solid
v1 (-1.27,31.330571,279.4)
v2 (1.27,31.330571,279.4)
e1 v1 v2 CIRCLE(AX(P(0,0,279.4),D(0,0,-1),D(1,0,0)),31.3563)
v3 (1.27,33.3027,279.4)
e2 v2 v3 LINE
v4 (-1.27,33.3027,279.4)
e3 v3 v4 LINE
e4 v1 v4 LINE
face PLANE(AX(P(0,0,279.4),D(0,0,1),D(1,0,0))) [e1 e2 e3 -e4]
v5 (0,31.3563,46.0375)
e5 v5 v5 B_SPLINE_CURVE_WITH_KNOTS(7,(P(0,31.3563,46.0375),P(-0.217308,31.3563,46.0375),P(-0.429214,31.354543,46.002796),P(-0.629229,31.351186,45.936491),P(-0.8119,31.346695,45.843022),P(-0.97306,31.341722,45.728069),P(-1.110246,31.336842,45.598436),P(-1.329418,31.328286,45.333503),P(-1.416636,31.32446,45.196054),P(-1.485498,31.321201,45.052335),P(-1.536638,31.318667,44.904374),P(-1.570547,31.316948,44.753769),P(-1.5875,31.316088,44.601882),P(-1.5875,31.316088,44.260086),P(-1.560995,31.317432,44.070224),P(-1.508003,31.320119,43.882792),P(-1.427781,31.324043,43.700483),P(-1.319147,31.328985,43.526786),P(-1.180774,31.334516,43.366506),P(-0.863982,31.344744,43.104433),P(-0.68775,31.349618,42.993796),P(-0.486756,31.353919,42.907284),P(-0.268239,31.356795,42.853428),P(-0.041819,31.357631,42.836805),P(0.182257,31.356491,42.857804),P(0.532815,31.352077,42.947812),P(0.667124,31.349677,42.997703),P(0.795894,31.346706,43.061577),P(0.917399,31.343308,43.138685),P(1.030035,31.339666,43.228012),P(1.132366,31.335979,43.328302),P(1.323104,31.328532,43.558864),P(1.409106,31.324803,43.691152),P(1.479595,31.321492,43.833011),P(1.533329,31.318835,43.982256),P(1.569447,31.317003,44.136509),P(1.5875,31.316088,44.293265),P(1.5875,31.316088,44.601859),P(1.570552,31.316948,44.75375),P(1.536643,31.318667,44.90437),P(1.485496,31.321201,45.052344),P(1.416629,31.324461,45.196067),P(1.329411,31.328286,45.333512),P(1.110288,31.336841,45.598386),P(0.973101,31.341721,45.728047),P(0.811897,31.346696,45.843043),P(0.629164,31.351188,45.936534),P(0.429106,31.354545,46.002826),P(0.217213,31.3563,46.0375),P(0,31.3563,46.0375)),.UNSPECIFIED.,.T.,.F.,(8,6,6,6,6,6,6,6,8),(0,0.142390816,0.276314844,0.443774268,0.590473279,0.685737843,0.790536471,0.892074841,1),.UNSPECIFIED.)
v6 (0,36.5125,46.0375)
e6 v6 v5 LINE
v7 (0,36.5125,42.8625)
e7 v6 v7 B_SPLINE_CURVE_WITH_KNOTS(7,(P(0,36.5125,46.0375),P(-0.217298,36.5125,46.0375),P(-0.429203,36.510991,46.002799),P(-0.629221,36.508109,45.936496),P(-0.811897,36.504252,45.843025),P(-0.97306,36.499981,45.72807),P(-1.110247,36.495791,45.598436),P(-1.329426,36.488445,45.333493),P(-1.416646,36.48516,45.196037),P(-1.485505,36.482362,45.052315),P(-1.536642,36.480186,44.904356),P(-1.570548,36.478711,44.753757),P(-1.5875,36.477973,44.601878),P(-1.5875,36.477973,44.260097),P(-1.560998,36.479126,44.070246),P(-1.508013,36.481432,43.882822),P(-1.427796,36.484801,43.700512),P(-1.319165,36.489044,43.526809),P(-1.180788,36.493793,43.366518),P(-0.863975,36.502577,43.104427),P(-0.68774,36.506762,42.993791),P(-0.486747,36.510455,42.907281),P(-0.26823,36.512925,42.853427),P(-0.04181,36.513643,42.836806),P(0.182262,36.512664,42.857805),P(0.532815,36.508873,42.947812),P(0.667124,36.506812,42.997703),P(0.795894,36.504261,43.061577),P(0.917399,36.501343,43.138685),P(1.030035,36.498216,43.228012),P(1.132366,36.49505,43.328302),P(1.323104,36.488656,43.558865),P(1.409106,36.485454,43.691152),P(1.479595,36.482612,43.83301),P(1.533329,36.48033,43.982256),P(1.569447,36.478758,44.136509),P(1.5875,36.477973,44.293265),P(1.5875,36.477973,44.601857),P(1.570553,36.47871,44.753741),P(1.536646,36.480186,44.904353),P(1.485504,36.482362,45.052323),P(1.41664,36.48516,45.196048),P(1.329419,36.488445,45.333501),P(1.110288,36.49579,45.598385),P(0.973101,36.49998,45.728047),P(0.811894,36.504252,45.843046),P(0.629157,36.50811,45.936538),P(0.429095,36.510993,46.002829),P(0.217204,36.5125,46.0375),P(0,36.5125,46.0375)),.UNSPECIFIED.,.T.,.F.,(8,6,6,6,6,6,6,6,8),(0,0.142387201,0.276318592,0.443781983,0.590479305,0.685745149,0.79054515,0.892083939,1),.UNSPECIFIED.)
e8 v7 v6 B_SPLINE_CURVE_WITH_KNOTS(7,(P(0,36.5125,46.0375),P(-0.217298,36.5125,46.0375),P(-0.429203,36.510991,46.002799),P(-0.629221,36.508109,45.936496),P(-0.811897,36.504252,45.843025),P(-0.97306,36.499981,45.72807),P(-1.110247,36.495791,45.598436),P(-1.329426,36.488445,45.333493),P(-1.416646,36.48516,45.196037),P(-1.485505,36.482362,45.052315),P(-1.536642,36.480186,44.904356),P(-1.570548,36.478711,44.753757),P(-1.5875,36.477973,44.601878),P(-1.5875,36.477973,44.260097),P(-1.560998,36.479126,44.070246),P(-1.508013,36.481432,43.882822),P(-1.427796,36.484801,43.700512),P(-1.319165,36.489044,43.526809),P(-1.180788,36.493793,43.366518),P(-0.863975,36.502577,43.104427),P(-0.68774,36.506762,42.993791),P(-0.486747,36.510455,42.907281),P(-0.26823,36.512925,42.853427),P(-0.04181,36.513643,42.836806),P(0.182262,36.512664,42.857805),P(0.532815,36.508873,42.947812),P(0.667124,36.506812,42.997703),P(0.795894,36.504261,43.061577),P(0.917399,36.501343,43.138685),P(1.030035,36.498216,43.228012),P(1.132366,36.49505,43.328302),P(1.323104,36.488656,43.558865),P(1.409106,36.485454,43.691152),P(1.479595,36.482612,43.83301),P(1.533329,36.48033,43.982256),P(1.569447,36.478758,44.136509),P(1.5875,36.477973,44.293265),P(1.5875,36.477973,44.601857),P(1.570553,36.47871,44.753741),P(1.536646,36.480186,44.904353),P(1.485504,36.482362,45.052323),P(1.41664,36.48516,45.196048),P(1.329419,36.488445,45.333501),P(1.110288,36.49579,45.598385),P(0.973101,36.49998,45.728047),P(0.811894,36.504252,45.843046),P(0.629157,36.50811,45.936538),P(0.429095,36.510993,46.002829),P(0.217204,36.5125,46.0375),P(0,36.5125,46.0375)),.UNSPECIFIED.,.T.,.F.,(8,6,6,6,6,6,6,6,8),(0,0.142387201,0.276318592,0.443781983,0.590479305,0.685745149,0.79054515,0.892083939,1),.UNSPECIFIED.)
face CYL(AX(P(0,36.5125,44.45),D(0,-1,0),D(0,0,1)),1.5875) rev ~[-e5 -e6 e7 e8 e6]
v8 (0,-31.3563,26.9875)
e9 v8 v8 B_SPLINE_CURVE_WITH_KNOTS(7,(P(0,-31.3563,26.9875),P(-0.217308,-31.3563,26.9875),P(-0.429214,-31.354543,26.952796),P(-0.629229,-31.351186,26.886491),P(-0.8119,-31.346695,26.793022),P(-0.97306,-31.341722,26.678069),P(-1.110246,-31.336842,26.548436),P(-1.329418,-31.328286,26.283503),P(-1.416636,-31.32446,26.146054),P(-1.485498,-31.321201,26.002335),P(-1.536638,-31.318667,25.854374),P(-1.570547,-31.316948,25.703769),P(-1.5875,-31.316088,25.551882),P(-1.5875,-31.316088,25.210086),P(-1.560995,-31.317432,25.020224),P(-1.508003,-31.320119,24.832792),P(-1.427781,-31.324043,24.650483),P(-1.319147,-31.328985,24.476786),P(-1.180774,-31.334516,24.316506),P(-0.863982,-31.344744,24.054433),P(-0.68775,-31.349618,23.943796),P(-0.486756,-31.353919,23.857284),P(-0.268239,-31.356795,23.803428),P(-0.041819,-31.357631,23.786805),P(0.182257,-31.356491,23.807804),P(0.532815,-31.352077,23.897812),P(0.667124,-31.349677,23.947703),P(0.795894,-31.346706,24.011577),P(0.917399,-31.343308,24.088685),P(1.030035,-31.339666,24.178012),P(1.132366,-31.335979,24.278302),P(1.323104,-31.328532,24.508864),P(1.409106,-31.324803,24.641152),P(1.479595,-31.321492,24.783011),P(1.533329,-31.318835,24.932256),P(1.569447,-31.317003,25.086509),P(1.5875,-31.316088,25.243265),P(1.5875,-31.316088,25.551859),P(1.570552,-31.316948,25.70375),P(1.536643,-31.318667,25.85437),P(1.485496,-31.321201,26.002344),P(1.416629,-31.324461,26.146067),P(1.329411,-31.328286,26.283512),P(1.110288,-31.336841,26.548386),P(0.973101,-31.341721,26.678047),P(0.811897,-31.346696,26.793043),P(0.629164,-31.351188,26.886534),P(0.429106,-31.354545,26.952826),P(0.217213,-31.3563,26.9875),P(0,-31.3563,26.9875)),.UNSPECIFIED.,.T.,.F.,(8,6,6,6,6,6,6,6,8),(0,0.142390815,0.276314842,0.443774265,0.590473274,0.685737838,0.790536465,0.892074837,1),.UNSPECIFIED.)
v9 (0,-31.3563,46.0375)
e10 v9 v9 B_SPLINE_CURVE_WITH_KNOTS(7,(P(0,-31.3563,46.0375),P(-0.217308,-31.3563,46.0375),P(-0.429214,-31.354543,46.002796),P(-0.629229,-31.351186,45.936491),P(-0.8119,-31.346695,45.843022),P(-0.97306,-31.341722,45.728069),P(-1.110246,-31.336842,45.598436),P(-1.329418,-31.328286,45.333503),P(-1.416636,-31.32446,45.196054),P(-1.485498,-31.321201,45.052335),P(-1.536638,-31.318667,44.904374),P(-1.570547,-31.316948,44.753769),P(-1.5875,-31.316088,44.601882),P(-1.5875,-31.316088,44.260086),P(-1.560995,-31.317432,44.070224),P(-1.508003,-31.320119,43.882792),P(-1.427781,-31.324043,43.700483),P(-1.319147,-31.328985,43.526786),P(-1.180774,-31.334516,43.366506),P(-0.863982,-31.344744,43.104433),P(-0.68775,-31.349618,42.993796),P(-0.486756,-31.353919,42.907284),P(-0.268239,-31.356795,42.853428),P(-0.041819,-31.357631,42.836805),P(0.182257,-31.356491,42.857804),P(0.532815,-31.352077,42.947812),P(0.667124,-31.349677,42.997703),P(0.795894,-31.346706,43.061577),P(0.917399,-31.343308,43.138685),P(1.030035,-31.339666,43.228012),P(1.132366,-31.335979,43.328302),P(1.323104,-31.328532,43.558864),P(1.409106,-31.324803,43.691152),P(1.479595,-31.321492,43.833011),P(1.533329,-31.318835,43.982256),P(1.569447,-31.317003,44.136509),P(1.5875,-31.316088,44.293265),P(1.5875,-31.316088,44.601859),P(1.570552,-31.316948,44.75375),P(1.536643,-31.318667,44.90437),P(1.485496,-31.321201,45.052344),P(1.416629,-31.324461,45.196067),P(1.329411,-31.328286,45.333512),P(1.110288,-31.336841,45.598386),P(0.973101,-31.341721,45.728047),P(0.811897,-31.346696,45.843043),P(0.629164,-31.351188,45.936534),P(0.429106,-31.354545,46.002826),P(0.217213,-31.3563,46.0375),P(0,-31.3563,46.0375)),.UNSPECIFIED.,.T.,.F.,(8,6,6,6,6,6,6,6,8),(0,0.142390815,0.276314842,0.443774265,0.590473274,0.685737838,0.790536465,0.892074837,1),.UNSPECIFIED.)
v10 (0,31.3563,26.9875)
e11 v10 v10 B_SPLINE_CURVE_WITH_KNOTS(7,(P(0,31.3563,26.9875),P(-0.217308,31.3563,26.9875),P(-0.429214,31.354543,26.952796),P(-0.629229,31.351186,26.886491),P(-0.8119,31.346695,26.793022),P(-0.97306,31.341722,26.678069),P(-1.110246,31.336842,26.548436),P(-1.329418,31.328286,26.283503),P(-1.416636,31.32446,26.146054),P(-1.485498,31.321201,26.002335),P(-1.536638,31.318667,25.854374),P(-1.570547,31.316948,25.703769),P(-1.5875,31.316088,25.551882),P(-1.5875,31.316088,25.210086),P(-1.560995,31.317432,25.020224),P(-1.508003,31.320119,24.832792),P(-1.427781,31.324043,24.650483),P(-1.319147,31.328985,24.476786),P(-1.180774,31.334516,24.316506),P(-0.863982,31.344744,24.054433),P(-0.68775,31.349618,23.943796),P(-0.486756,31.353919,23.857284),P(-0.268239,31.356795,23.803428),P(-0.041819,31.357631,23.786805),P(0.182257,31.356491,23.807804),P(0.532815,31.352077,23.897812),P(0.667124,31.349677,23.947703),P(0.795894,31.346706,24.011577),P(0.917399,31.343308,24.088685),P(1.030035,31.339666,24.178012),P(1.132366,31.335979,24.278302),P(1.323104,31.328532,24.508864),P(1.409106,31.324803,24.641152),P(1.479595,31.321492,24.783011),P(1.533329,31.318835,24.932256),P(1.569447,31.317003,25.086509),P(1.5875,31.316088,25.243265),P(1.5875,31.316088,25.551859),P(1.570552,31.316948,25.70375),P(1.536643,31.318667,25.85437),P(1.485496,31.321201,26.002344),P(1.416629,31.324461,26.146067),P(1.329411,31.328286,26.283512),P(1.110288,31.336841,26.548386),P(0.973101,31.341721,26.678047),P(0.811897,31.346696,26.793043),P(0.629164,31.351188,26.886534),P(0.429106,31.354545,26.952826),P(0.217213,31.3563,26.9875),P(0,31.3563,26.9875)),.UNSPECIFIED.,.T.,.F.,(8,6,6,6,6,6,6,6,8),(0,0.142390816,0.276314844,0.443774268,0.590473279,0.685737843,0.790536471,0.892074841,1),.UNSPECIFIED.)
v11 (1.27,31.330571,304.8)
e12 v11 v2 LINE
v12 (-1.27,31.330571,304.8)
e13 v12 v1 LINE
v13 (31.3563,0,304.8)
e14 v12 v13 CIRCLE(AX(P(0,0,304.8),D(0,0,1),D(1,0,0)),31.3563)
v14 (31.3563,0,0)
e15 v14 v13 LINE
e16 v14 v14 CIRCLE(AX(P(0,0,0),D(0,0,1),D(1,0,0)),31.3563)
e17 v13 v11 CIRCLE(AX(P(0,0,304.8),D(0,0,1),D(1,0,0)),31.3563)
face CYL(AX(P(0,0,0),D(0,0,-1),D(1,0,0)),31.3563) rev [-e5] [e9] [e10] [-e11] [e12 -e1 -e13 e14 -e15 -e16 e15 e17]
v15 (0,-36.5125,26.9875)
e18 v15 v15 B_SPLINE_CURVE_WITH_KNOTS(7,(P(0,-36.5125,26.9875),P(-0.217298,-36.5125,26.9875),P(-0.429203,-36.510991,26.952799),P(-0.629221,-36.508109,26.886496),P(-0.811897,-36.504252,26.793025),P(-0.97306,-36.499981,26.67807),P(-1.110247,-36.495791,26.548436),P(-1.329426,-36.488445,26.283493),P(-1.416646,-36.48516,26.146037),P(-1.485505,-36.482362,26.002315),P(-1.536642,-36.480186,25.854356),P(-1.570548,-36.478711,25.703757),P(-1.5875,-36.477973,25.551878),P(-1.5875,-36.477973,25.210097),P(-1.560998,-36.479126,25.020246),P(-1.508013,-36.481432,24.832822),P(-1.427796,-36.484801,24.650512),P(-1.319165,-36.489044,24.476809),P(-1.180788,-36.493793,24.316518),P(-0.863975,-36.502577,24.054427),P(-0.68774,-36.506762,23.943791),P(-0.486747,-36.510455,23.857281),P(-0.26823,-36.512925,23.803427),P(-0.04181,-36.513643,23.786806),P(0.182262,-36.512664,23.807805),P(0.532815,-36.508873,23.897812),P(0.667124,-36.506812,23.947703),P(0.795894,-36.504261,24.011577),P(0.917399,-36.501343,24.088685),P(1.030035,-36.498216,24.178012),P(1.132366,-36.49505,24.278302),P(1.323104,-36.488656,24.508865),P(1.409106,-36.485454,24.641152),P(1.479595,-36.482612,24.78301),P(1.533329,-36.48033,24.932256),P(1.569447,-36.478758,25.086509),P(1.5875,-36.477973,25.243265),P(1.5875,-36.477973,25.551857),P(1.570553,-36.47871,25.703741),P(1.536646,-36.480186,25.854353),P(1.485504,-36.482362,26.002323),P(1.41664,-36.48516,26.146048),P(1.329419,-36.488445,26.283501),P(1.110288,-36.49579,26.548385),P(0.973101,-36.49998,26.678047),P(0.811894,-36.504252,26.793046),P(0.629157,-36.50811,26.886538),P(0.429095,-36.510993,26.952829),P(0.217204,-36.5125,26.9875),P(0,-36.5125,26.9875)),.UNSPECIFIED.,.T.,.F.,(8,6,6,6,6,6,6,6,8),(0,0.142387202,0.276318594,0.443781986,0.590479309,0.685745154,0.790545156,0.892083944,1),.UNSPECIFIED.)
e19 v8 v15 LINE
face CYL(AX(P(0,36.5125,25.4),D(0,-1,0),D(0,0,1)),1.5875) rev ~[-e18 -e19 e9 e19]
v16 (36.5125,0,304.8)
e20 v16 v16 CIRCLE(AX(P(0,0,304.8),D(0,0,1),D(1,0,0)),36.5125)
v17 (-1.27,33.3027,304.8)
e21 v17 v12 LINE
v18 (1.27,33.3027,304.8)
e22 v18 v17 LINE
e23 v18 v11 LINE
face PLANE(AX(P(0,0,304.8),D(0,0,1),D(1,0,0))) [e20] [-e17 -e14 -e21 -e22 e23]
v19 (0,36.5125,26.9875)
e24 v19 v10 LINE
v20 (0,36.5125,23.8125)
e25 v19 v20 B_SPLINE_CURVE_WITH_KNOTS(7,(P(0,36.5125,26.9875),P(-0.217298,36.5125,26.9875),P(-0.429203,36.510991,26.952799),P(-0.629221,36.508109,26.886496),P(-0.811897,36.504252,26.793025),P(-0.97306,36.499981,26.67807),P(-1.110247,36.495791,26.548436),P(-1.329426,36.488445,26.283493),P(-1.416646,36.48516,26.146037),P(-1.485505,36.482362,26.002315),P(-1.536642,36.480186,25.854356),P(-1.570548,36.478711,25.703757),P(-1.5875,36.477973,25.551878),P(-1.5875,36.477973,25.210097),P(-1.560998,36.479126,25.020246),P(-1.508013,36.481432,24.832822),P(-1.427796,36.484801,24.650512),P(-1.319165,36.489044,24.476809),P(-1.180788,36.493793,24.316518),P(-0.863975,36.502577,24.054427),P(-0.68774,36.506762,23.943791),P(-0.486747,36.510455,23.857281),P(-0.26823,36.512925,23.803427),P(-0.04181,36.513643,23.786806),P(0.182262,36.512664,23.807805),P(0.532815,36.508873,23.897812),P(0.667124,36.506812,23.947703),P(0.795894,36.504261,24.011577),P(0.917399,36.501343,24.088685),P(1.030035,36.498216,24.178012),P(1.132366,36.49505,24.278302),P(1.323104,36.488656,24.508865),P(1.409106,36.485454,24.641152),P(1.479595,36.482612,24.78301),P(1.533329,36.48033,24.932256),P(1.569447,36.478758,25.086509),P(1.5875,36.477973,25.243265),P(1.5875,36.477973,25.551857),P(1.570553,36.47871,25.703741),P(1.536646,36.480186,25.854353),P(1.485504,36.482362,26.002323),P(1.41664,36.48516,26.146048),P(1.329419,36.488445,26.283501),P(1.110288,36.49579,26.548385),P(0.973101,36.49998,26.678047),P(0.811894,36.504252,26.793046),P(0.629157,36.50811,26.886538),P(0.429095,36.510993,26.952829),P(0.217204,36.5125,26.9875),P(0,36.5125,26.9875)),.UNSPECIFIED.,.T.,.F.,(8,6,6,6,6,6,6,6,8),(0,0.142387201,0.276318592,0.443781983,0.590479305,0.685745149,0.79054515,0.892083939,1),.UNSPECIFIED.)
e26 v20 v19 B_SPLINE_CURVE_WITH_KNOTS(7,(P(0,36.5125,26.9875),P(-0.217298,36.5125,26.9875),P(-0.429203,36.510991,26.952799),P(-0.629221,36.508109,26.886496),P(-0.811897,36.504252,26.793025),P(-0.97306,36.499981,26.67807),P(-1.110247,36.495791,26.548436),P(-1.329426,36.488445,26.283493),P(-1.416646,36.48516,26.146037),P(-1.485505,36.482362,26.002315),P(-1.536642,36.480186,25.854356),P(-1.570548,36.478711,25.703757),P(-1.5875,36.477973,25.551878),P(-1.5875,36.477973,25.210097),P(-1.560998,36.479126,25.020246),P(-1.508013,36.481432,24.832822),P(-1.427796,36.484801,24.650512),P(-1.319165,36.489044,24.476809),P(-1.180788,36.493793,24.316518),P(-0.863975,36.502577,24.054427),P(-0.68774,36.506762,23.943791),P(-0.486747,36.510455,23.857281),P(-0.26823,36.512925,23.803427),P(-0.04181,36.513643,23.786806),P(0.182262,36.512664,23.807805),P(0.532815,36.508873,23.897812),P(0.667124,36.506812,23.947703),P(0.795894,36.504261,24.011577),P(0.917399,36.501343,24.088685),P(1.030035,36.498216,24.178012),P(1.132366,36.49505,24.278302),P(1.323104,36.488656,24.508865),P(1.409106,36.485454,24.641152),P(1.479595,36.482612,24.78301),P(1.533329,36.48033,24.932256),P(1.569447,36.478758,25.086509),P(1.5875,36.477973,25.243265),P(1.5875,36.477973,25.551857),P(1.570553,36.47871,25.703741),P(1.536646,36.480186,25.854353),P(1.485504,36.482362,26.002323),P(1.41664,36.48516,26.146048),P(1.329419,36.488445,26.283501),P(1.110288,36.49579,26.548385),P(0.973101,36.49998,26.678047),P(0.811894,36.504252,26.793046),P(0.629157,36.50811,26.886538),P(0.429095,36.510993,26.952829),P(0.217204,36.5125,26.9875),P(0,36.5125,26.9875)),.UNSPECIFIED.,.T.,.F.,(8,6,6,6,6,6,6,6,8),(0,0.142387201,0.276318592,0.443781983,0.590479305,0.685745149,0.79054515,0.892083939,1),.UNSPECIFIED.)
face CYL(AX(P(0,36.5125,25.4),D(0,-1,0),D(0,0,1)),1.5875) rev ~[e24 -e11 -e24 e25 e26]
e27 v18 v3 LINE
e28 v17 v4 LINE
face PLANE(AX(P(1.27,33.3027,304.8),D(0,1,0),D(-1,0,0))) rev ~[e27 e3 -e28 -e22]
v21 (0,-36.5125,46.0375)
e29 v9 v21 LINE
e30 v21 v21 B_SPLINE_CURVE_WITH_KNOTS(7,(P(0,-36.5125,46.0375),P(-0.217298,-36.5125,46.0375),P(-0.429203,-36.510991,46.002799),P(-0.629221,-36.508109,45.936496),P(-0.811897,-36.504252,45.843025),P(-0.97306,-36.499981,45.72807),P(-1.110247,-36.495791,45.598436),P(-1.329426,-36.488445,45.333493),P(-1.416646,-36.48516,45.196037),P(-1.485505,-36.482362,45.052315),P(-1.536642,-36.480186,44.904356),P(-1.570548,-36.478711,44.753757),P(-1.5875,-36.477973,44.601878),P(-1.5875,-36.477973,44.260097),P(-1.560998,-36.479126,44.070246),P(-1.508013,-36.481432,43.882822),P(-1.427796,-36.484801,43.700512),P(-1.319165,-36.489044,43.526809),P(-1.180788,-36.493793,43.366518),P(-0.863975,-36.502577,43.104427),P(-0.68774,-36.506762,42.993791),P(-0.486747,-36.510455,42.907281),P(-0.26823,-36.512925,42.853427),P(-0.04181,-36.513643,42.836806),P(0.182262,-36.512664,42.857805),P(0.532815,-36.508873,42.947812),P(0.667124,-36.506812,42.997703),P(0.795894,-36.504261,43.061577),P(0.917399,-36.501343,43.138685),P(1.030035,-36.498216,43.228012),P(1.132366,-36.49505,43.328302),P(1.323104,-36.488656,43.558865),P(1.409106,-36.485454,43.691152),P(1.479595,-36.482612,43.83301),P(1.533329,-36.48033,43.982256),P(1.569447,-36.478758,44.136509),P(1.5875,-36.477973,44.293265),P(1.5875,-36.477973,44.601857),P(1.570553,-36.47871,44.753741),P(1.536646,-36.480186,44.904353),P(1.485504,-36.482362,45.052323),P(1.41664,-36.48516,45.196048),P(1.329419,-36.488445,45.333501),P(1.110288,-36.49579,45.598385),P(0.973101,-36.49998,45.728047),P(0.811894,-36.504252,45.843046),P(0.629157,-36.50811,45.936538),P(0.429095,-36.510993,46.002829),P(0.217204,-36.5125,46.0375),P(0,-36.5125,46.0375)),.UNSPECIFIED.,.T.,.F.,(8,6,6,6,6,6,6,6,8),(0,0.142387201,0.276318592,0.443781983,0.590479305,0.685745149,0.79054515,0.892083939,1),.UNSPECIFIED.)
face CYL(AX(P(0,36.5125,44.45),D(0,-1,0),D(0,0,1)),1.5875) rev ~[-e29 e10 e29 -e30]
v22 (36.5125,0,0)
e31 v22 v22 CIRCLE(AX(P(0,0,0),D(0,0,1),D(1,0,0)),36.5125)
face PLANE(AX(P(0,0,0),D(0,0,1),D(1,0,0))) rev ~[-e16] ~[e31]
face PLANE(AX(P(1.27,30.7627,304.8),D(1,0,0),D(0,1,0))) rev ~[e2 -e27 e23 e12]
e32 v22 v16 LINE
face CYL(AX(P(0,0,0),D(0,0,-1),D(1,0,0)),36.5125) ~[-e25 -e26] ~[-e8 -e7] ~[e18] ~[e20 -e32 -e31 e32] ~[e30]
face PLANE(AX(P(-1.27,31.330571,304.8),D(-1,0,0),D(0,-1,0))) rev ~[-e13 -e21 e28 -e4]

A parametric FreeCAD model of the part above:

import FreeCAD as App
import Part
import Sketcher

V = App.Vector
Q = App.Units.Quantity


def add_polygon(sketch, points):
    """Adds a closed chain of lines whose ends are joined by coincident constraints."""
    first, n = sketch.GeometryCount, len(points)
    for a, b in zip(points, points[1:] + points[:1]):
        sketch.addGeometry(Part.LineSegment(App.Vector(*a, 0), App.Vector(*b, 0)), False)
    for i in range(n):
        sketch.addConstraint(Sketcher.Constraint("Coincident", first + i, 2, first + (i + 1) % n, 1))

doc = App.newDocument("Part")
body = doc.addObject("PartDesign::Body", "Body")

# Sketch on XY plane
sketch1 = doc.addObject("Sketcher::SketchObject", "Sketch")
body.addObject(sketch1)
sketch1.AttachmentSupport = (doc.XY_Plane, [""])
sketch1.MapMode = "FlatFace"
sketch1.addGeometry(Part.Circle(V(0, 0, 0), V(0, 0, 1), 36.5125), False)
sketch1.addGeometry(Part.Circle(V(0, 0, 0), V(0, 0, 1), 31.3563), False)
sketch1.addConstraint(Sketcher.Constraint("Coincident", 0, 3, -1, 1))
sketch1.addConstraint(Sketcher.Constraint("Coincident", 1, 3, -1, 1))
sketch1.addConstraint(Sketcher.Constraint("Diameter", 0, Q("2.875 in")))
sketch1.addConstraint(Sketcher.Constraint("Diameter", 1, Q("2.469 in")))
pad1 = doc.addObject("PartDesign::Pad", "Pad")
body.addObject(pad1)
pad1.Profile = sketch1
pad1.Length = Q("12 in")

# Sketch on XZ plane
sketch2 = doc.addObject("Sketcher::SketchObject", "Sketch001")
body.addObject(sketch2)
sketch2.AttachmentSupport = (doc.XZ_Plane, [""])
sketch2.MapMode = "FlatFace"
sketch2.AttachmentOffset = App.Placement(V(0, 0, -1.4375 * 25.4), App.Rotation())
sketch2.addGeometry(Part.Circle(V(0, 44.45, 0), V(0, 0, 1), 1.5875), False)
sketch2.addGeometry(Part.Circle(V(0, 25.4, 0), V(0, 0, 1), 1.5875), False)
sketch2.addConstraint(Sketcher.Constraint("Equal", 0, 1))
sketch2.addConstraint(Sketcher.Constraint("PointOnObject", 0, 3, -2))
sketch2.addConstraint(Sketcher.Constraint("PointOnObject", 1, 3, -2))
sketch2.addConstraint(Sketcher.Constraint("Diameter", 0, Q("0.125 in")))
sketch2.addConstraint(Sketcher.Constraint("DistanceY", -1, 1, 1, 3, Q("1 in")))
sketch2.addConstraint(Sketcher.Constraint("DistanceY", -1, 1, 0, 3, Q("1.75 in")))
doc.recompute()
hole = doc.addObject("PartDesign::Hole", "Hole")
body.addObject(hole)
hole.Profile = sketch2
hole.ThreadType = "None"
hole.Diameter = Q("0.125 in")
hole.DepthType = "ThroughAll"
hole.Reversed = True

# Sketch on XY plane
sketch3 = doc.addObject("Sketcher::SketchObject", "Sketch002")
body.addObject(sketch3)
sketch3.AttachmentSupport = (doc.XY_Plane, [""])
sketch3.MapMode = "FlatFace"
sketch3.AttachmentOffset = App.Placement(V(0, 0, 12 * 25.4), App.Rotation())
add_polygon(sketch3, [(1.27, 30.7627), (1.27, 33.3027), (-1.27, 33.3027), (-1.27, 30.7627)])  # lines 0-3
sketch3.addConstraint(Sketcher.Constraint("Vertical", 0))
sketch3.addConstraint(Sketcher.Constraint("Horizontal", 1))
sketch3.addConstraint(Sketcher.Constraint("Vertical", 2))
sketch3.addConstraint(Sketcher.Constraint("Horizontal", 3))
sketch3.addConstraint(Sketcher.Constraint("Equal", 3, 0))
sketch3.addConstraint(Sketcher.Constraint("DistanceX", 1, 2, 1, 1, Q("0.1 in")))
sketch3.addConstraint(Sketcher.Constraint("DistanceX", -1, 1, 0, 2, Q("0.05 in")))
sketch3.addConstraint(Sketcher.Constraint("DistanceY", -1, 1, 0, 2, Q("33.3027 mm")))
pocket1 = doc.addObject("PartDesign::Pocket", "Pocket")
body.addObject(pocket1)
pocket1.Profile = sketch3
pocket1.Length = Q("1 in")

doc.recompute()
